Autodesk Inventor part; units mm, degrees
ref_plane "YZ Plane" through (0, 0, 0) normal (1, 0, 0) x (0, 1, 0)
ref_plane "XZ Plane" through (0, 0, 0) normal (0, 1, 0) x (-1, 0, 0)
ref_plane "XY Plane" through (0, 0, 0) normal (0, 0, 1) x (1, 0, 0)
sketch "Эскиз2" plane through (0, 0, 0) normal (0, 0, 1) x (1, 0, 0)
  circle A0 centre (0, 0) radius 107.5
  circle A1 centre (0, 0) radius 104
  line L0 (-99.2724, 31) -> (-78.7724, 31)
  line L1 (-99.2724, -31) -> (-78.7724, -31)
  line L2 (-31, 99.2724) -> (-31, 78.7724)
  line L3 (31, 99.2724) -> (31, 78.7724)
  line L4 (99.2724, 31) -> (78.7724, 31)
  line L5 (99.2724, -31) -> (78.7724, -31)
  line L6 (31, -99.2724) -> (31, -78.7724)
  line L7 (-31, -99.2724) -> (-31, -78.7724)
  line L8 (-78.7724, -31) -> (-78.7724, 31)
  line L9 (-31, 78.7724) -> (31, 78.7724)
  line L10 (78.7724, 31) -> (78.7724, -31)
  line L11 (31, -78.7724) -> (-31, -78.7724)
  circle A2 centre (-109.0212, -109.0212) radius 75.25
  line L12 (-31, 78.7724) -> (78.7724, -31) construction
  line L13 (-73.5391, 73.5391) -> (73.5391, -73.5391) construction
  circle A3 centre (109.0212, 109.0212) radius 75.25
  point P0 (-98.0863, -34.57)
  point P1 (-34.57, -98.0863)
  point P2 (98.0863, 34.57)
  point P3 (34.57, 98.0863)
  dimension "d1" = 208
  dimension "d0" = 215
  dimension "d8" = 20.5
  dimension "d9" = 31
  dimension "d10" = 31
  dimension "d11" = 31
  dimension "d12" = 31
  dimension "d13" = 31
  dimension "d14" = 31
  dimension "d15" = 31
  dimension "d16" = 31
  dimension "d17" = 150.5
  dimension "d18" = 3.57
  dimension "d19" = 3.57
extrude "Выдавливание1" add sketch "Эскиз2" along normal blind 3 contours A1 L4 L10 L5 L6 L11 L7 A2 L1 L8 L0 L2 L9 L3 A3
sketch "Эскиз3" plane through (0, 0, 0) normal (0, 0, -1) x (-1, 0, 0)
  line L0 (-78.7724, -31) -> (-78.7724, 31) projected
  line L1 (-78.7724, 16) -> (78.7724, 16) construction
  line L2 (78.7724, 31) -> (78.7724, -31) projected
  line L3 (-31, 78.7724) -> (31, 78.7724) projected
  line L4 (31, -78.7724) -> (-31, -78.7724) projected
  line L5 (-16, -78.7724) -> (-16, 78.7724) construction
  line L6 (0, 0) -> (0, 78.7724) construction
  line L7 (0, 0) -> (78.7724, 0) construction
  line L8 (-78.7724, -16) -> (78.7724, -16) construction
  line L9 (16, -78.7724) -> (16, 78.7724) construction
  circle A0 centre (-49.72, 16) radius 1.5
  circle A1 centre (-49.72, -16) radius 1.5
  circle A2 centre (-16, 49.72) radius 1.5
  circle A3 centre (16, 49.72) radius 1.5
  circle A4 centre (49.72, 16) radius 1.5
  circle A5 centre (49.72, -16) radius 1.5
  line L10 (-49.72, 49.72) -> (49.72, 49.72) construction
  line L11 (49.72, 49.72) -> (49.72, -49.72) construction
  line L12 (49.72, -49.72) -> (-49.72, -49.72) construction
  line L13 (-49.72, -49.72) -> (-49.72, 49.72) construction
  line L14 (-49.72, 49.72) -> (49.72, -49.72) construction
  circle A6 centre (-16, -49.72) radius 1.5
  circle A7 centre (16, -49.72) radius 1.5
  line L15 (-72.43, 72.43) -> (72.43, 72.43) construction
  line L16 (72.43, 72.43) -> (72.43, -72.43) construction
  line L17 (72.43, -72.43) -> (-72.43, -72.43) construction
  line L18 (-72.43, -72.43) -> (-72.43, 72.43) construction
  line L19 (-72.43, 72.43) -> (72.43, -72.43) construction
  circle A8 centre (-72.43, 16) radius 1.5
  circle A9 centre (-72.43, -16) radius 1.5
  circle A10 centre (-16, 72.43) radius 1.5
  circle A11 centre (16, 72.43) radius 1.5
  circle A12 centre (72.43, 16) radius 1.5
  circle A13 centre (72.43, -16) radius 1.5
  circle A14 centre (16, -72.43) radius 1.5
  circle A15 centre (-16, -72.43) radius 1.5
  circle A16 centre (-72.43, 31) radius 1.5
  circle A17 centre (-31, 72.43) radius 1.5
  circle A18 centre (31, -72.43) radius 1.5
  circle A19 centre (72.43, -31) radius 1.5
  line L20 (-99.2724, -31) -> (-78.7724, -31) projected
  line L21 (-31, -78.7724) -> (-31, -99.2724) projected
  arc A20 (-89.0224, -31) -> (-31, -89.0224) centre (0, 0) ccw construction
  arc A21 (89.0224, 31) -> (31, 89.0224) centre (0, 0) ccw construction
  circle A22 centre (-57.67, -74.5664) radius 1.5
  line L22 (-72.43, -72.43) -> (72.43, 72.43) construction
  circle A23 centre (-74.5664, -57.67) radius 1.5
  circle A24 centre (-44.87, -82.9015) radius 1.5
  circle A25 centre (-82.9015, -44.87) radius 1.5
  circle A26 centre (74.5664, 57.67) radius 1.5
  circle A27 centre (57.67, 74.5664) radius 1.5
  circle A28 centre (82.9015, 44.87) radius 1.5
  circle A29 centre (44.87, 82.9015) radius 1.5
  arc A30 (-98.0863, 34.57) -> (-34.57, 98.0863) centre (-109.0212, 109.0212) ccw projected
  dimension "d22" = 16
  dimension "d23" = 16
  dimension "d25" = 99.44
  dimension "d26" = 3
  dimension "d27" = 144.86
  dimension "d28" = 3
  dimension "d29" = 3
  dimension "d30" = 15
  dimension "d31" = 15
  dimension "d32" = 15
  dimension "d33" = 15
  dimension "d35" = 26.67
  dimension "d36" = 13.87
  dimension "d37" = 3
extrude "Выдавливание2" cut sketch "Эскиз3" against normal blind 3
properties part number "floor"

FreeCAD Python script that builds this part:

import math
import FreeCAD as App
import Part
import Sketcher

V = App.Vector

doc = App.newDocument("Part")
params = doc.addObject("Spreadsheet::Sheet", "Params")
for row, (alias, value) in enumerate([
    ("sketch1_radius", "104 mm"),
    ("sketch1_radius2", "75.25 mm"),
    ("sketch1_width", "20.5 mm"),
    ("pad1_length", "3 mm"),
    ("sketch2_diameter", "3 mm"),
    ("pocket1_length", "3 mm"),
], start=1):
    params.set(f"A{row}", alias)
    params.set(f"B{row}", "=" + value)
    params.setAlias(f"B{row}", alias)

body = doc.addObject("PartDesign::Body", "Body")

# Sketch on XY plane
sketch1 = body.newObject("Sketcher::SketchObject", "Sketch")
sketch1.AttachmentSupport = (doc.getObject("XY_Plane"), [""])
sketch1.MapMode = "FlatFace"
sketch1.addGeometry(Part.ArcOfCircle(Part.Circle(V(0, 0, 0), V(0, 0, 1), 104), math.radians(17.34), math.radians(19.41)), False)
sketch1.addGeometry(Part.ArcOfCircle(Part.Circle(V(109, 109, 0), V(0, 0, 1), 75.2), math.radians(-172), math.radians(-98)), False)
sketch1.addGeometry(Part.ArcOfCircle(Part.Circle(V(0, 0, 0), V(0, 0, 1), 104), math.radians(70.59), math.radians(72.66)), False)
sketch1.addGeometry(Part.LineSegment(V(31, 99.3, 0), V(31, 78.8, 0)), False)
sketch1.addGeometry(Part.LineSegment(V(31, 78.8, 0), V(-31, 78.8, 0)), False)
sketch1.addGeometry(Part.LineSegment(V(-31, 78.8, 0), V(-31, 99.3, 0)), False)
sketch1.addGeometry(Part.ArcOfCircle(Part.Circle(V(0, 0, 0), V(0, 0, 1), 104), math.radians(107), math.radians(163)), False)
sketch1.addGeometry(Part.LineSegment(V(-99.3, 31, 0), V(-78.8, 31, 0)), False)
sketch1.addGeometry(Part.LineSegment(V(-78.8, 31, 0), V(-78.8, -31, 0)), False)
sketch1.addGeometry(Part.LineSegment(V(-78.8, -31, 0), V(-99.3, -31, 0)), False)
sketch1.addGeometry(Part.ArcOfCircle(Part.Circle(V(0, 0, 0), V(0, 0, 1), 104), math.radians(-162.66), math.radians(-160.59)), False)
sketch1.addGeometry(Part.ArcOfCircle(Part.Circle(V(-109, -109, 0), V(0, 0, 1), 75.2), math.radians(8), math.radians(82)), False)
sketch1.addGeometry(Part.ArcOfCircle(Part.Circle(V(0, 0, 0), V(0, 0, 1), 104), math.radians(-109.41), math.radians(-107.34)), False)
sketch1.addGeometry(Part.LineSegment(V(-31, -99.3, 0), V(-31, -78.8, 0)), False)
sketch1.addGeometry(Part.LineSegment(V(-31, -78.8, 0), V(31, -78.8, 0)), False)
sketch1.addGeometry(Part.LineSegment(V(31, -78.8, 0), V(31, -99.3, 0)), False)
sketch1.addGeometry(Part.ArcOfCircle(Part.Circle(V(0, 0, 0), V(0, 0, 1), 104), math.radians(-73), math.radians(-17)), False)
sketch1.addGeometry(Part.LineSegment(V(99.3, -31, 0), V(78.8, -31, 0)), False)
sketch1.addGeometry(Part.LineSegment(V(78.8, -31, 0), V(78.8, 31, 0)), False)
sketch1.addGeometry(Part.LineSegment(V(78.8, 31, 0), V(99.3, 31, 0)), False)
sketch1.addConstraint(Sketcher.Constraint("Coincident", 0, 2, 1, 2))
sketch1.addConstraint(Sketcher.Constraint("Coincident", 1, 1, 2, 1))
sketch1.addConstraint(Sketcher.Constraint("Coincident", 2, 2, 3, 1))
sketch1.addConstraint(Sketcher.Constraint("Coincident", 3, 2, 4, 1))
sketch1.addConstraint(Sketcher.Constraint("Coincident", 4, 2, 5, 1))
sketch1.addConstraint(Sketcher.Constraint("Coincident", 5, 2, 6, 1))
sketch1.addConstraint(Sketcher.Constraint("Coincident", 6, 2, 7, 1))
sketch1.addConstraint(Sketcher.Constraint("Coincident", 7, 2, 8, 1))
sketch1.addConstraint(Sketcher.Constraint("Coincident", 8, 2, 9, 1))
sketch1.addConstraint(Sketcher.Constraint("Coincident", 9, 2, 10, 1))
sketch1.addConstraint(Sketcher.Constraint("Coincident", 10, 2, 11, 2))
sketch1.addConstraint(Sketcher.Constraint("Coincident", 11, 1, 12, 1))
sketch1.addConstraint(Sketcher.Constraint("Coincident", 12, 2, 13, 1))
sketch1.addConstraint(Sketcher.Constraint("Coincident", 13, 2, 14, 1))
sketch1.addConstraint(Sketcher.Constraint("Coincident", 14, 2, 15, 1))
sketch1.addConstraint(Sketcher.Constraint("Coincident", 15, 2, 16, 1))
sketch1.addConstraint(Sketcher.Constraint("Coincident", 16, 2, 17, 1))
sketch1.addConstraint(Sketcher.Constraint("Coincident", 17, 2, 18, 1))
sketch1.addConstraint(Sketcher.Constraint("Coincident", 18, 2, 19, 1))
sketch1.addConstraint(Sketcher.Constraint("Coincident", 19, 2, 0, 1))
sketch1.addConstraint(Sketcher.Constraint("Vertical", 3))
sketch1.addConstraint(Sketcher.Constraint("Horizontal", 4))
sketch1.addConstraint(Sketcher.Constraint("Vertical", 5))
sketch1.addConstraint(Sketcher.Constraint("Horizontal", 7))
sketch1.addConstraint(Sketcher.Constraint("Vertical", 8))
sketch1.addConstraint(Sketcher.Constraint("Horizontal", 9))
sketch1.addConstraint(Sketcher.Constraint("Vertical", 13))
sketch1.addConstraint(Sketcher.Constraint("Horizontal", 14))
sketch1.addConstraint(Sketcher.Constraint("Vertical", 15))
sketch1.addConstraint(Sketcher.Constraint("Horizontal", 17))
sketch1.addConstraint(Sketcher.Constraint("Vertical", 18))
sketch1.addConstraint(Sketcher.Constraint("Horizontal", 19))
sketch1.addConstraint(Sketcher.Constraint("Coincident", 0, 3, -1, 1))
sketch1.addConstraint(Sketcher.Constraint("Coincident", 2, 3, -1, 1))
sketch1.addConstraint(Sketcher.Constraint("Coincident", 6, 3, -1, 1))
sketch1.addConstraint(Sketcher.Constraint("Coincident", 10, 3, -1, 1))
sketch1.addConstraint(Sketcher.Constraint("Coincident", 12, 3, -1, 1))
sketch1.addConstraint(Sketcher.Constraint("Coincident", 16, 3, -1, 1))
sketch1.addConstraint(Sketcher.Constraint("Equal", 0, 2))
sketch1.addConstraint(Sketcher.Constraint("Equal", 2, 6))
sketch1.addConstraint(Sketcher.Constraint("Equal", 6, 10))
sketch1.addConstraint(Sketcher.Constraint("Equal", 1, 11))
sketch1.addConstraint(Sketcher.Constraint("Equal", 10, 12))
sketch1.addConstraint(Sketcher.Constraint("Equal", 12, 16))
sketch1.addConstraint(Sketcher.Constraint("Symmetric", 1, 3, 11, 3, -1, 1))
sketch1.addConstraint(Sketcher.Constraint("Symmetric", 3, 2, 13, 2, -1, 1))
sketch1.addConstraint(Sketcher.Constraint("Symmetric", 7, 2, 17, 2, -1, 1))
sketch1.addConstraint(Sketcher.Constraint("Horizontal", 2, 2, 5, 2))
sketch1.addConstraint(Sketcher.Constraint("Horizontal", 12, 2, 15, 2))
sketch1.addConstraint(Sketcher.Constraint("Horizontal", 9, 2, 16, 2))
sketch1.addConstraint(Sketcher.Constraint("Horizontal", 7, 2, 18, 2))
sketch1.addConstraint(Sketcher.Constraint("Equal", 19, 3))
sketch1.addConstraint(Sketcher.Constraint("Equal", 14, 8))
sketch1.addConstraint(Sketcher.Constraint("Radius", 0, 104.0))
sketch1.addConstraint(Sketcher.Constraint("Radius", 1, 75.25))
sketch1.addConstraint(Sketcher.Constraint("DistanceX", 7, 1, 7, 2, 20.5))
sketch1.addConstraint(Sketcher.Constraint("DistanceX", -1, 1, 3, 2, 31.0))
sketch1.addConstraint(Sketcher.Constraint("DistanceX", 2, 2, 1, 1, 3.57))
sketch1.addConstraint(Sketcher.Constraint("DistanceY", 10, 2, 9, 2, 3.57))
sketch1.setExpression("Constraints[53]", "Params.sketch1_radius")
sketch1.setExpression("Constraints[54]", "Params.sketch1_radius2")
sketch1.setExpression("Constraints[55]", "Params.sketch1_width")
pad1 = body.newObject("PartDesign::Pad", "Pad")
pad1.Profile = sketch1
pad1.setExpression("Length", "Params.pad1_length")

# Sketch on XY plane
sketch2 = body.newObject("Sketcher::SketchObject", "Sketch001")
sketch2.AttachmentSupport = (doc.getObject("XY_Plane"), [""])
sketch2.MapMode = "FlatFace"
sketch2.addGeometry(Part.Circle(V(49.7, 16, 0), V(0, 0, 1), 1.5), False)
sketch2.addGeometry(Part.Circle(V(49.7, -16, 0), V(0, 0, 1), 1.5), False)
sketch2.addGeometry(Part.Circle(V(16, 49.7, 0), V(0, 0, 1), 1.5), False)
sketch2.addGeometry(Part.Circle(V(-16, 49.7, 0), V(0, 0, 1), 1.5), False)
sketch2.addGeometry(Part.Circle(V(-49.7, 16, 0), V(0, 0, 1), 1.5), False)
sketch2.addGeometry(Part.Circle(V(-49.7, -16, 0), V(0, 0, 1), 1.5), False)
sketch2.addGeometry(Part.Circle(V(16, -49.7, 0), V(0, 0, 1), 1.5), False)
sketch2.addGeometry(Part.Circle(V(-16, -49.7, 0), V(0, 0, 1), 1.5), False)
sketch2.addGeometry(Part.Circle(V(72.4, 16, 0), V(0, 0, 1), 1.5), False)
sketch2.addGeometry(Part.Circle(V(72.4, -16, 0), V(0, 0, 1), 1.5), False)
sketch2.addGeometry(Part.Circle(V(16, 72.4, 0), V(0, 0, 1), 1.5), False)
sketch2.addGeometry(Part.Circle(V(-16, 72.4, 0), V(0, 0, 1), 1.5), False)
sketch2.addGeometry(Part.Circle(V(-72.4, 16, 0), V(0, 0, 1), 1.5), False)
sketch2.addGeometry(Part.Circle(V(-72.4, -16, 0), V(0, 0, 1), 1.5), False)
sketch2.addGeometry(Part.Circle(V(-16, -72.4, 0), V(0, 0, 1), 1.5), False)
sketch2.addGeometry(Part.Circle(V(16, -72.4, 0), V(0, 0, 1), 1.5), False)
sketch2.addGeometry(Part.Circle(V(72.4, 31, 0), V(0, 0, 1), 1.5), False)
sketch2.addGeometry(Part.Circle(V(31, 72.4, 0), V(0, 0, 1), 1.5), False)
sketch2.addGeometry(Part.Circle(V(-31, -72.4, 0), V(0, 0, 1), 1.5), False)
sketch2.addGeometry(Part.Circle(V(-72.4, -31, 0), V(0, 0, 1), 1.5), False)
sketch2.addGeometry(Part.Circle(V(57.7, -74.6, 0), V(0, 0, 1), 1.5), False)
sketch2.addGeometry(Part.Circle(V(74.6, -57.7, 0), V(0, 0, 1), 1.5), False)
sketch2.addGeometry(Part.Circle(V(44.9, -82.9, 0), V(0, 0, 1), 1.5), False)
sketch2.addGeometry(Part.Circle(V(82.9, -44.9, 0), V(0, 0, 1), 1.5), False)
sketch2.addGeometry(Part.Circle(V(-74.6, 57.7, 0), V(0, 0, 1), 1.5), False)
sketch2.addGeometry(Part.Circle(V(-57.7, 74.6, 0), V(0, 0, 1), 1.5), False)
sketch2.addGeometry(Part.Circle(V(-82.9, 44.9, 0), V(0, 0, 1), 1.5), False)
sketch2.addGeometry(Part.Circle(V(-44.9, 82.9, 0), V(0, 0, 1), 1.5), False)
sketch2.addConstraint(Sketcher.Constraint("Equal", 0, 1))
sketch2.addConstraint(Sketcher.Constraint("Equal", 1, 2))
sketch2.addConstraint(Sketcher.Constraint("Equal", 2, 3))
sketch2.addConstraint(Sketcher.Constraint("Equal", 3, 4))
sketch2.addConstraint(Sketcher.Constraint("Equal", 4, 5))
sketch2.addConstraint(Sketcher.Constraint("Equal", 5, 6))
sketch2.addConstraint(Sketcher.Constraint("Equal", 6, 7))
sketch2.addConstraint(Sketcher.Constraint("Equal", 7, 8))
sketch2.addConstraint(Sketcher.Constraint("Equal", 8, 9))
sketch2.addConstraint(Sketcher.Constraint("Equal", 9, 10))
sketch2.addConstraint(Sketcher.Constraint("Equal", 10, 11))
sketch2.addConstraint(Sketcher.Constraint("Equal", 11, 12))
sketch2.addConstraint(Sketcher.Constraint("Equal", 12, 13))
sketch2.addConstraint(Sketcher.Constraint("Equal", 13, 14))
sketch2.addConstraint(Sketcher.Constraint("Equal", 14, 15))
sketch2.addConstraint(Sketcher.Constraint("Equal", 15, 16))
sketch2.addConstraint(Sketcher.Constraint("Equal", 16, 17))
sketch2.addConstraint(Sketcher.Constraint("Equal", 17, 18))
sketch2.addConstraint(Sketcher.Constraint("Equal", 18, 19))
sketch2.addConstraint(Sketcher.Constraint("Equal", 19, 20))
sketch2.addConstraint(Sketcher.Constraint("Equal", 20, 21))
sketch2.addConstraint(Sketcher.Constraint("Equal", 21, 22))
sketch2.addConstraint(Sketcher.Constraint("Equal", 22, 23))
sketch2.addConstraint(Sketcher.Constraint("Equal", 23, 24))
sketch2.addConstraint(Sketcher.Constraint("Equal", 24, 25))
sketch2.addConstraint(Sketcher.Constraint("Equal", 25, 26))
sketch2.addConstraint(Sketcher.Constraint("Equal", 26, 27))
sketch2.addConstraint(Sketcher.Constraint("Symmetric", 1, 3, 4, 3, -1, 1))
sketch2.addConstraint(Sketcher.Constraint("Symmetric", 0, 3, 5, 3, -1, 1))
sketch2.addConstraint(Sketcher.Constraint("Symmetric", 3, 3, 6, 3, -1, 1))
sketch2.addConstraint(Sketcher.Constraint("Symmetric", 2, 3, 7, 3, -1, 1))
sketch2.addConstraint(Sketcher.Constraint("Symmetric", 9, 3, 12, 3, -1, 1))
sketch2.addConstraint(Sketcher.Constraint("Symmetric", 8, 3, 13, 3, -1, 1))
sketch2.addConstraint(Sketcher.Constraint("Symmetric", 10, 3, 14, 3, -1, 1))
sketch2.addConstraint(Sketcher.Constraint("Symmetric", 11, 3, 15, 3, -1, 1))
sketch2.addConstraint(Sketcher.Constraint("Symmetric", 17, 3, 18, 3, -1, 1))
sketch2.addConstraint(Sketcher.Constraint("Symmetric", 16, 3, 19, 3, -1, 1))
sketch2.addConstraint(Sketcher.Constraint("Symmetric", 21, 3, 24, 3, -1, 1))
sketch2.addConstraint(Sketcher.Constraint("Symmetric", 20, 3, 25, 3, -1, 1))
sketch2.addConstraint(Sketcher.Constraint("Symmetric", 23, 3, 26, 3, -1, 1))
sketch2.addConstraint(Sketcher.Constraint("Symmetric", 22, 3, 27, 3, -1, 1))
sketch2.addConstraint(Sketcher.Constraint("Symmetric", 2, 3, 3, 3, -2))
sketch2.addConstraint(Sketcher.Constraint("Symmetric", 0, 3, 4, 3, -2))
sketch2.addConstraint(Sketcher.Constraint("Symmetric", 10, 3, 11, 3, -2))
sketch2.addConstraint(Sketcher.Constraint("Symmetric", 8, 3, 12, 3, -2))
sketch2.addConstraint(Sketcher.Constraint("Horizontal", 4, 3, 8, 3))
sketch2.addConstraint(Sketcher.Constraint("Horizontal", 11, 3, 17, 3))
sketch2.addConstraint(Sketcher.Constraint("Vertical", 6, 3, 10, 3))
sketch2.addConstraint(Sketcher.Constraint("Vertical", 9, 3, 16, 3))
sketch2.addConstraint(Sketcher.Constraint("Diameter", 0, 3.0))
sketch2.addConstraint(Sketcher.Constraint("DistanceY", -1, 1, 0, 3, 16.0))
sketch2.addConstraint(Sketcher.Constraint("DistanceX", -1, 1, 2, 3, 16.0))
sketch2.addConstraint(Sketcher.Constraint("DistanceY", 8, 3, 16, 3, 15.0))
sketch2.addConstraint(Sketcher.Constraint("DistanceX", 10, 3, 17, 3, 15.0))
sketch2.addConstraint(Sketcher.Constraint("DistanceX", 4, 3, 0, 3, 99.44))
sketch2.addConstraint(Sketcher.Constraint("DistanceY", 6, 3, 2, 3, 99.44))
sketch2.addConstraint(Sketcher.Constraint("DistanceX", 22, 3, 20, 3, 12.8))
sketch2.addConstraint(Sketcher.Constraint("DistanceY", 21, 3, 23, 3, 12.8))
sketch2.addConstraint(Sketcher.Constraint("DistanceX", -1, 1, 8, 3, 72.43))
sketch2.addConstraint(Sketcher.Constraint("DistanceY", -1, 1, 10, 3, 72.43))
sketch2.addConstraint(Sketcher.Constraint("DistanceX", -1, 1, 20, 3, 57.67))
sketch2.addConstraint(Sketcher.Constraint("DistanceY", 21, 3, -1, 1, 57.67))
sketch2.addConstraint(Sketcher.Constraint("DistanceY", 22, 3, 20, 3, 8.335))
sketch2.addConstraint(Sketcher.Constraint("DistanceX", 21, 3, 23, 3, 8.335))
sketch2.addConstraint(Sketcher.Constraint("DistanceY", 20, 3, -1, 1, 74.5664))
sketch2.addConstraint(Sketcher.Constraint("DistanceX", -1, 1, 21, 3, 74.5664))
sketch2.setExpression("Constraints[49]", "Params.sketch2_diameter")
pocket1 = body.newObject("PartDesign::Pocket", "Pocket")
pocket1.Profile = sketch2
pocket1.setExpression("Length", "Params.pocket1_length")
pocket1.Reversed = True

doc.recompute()
